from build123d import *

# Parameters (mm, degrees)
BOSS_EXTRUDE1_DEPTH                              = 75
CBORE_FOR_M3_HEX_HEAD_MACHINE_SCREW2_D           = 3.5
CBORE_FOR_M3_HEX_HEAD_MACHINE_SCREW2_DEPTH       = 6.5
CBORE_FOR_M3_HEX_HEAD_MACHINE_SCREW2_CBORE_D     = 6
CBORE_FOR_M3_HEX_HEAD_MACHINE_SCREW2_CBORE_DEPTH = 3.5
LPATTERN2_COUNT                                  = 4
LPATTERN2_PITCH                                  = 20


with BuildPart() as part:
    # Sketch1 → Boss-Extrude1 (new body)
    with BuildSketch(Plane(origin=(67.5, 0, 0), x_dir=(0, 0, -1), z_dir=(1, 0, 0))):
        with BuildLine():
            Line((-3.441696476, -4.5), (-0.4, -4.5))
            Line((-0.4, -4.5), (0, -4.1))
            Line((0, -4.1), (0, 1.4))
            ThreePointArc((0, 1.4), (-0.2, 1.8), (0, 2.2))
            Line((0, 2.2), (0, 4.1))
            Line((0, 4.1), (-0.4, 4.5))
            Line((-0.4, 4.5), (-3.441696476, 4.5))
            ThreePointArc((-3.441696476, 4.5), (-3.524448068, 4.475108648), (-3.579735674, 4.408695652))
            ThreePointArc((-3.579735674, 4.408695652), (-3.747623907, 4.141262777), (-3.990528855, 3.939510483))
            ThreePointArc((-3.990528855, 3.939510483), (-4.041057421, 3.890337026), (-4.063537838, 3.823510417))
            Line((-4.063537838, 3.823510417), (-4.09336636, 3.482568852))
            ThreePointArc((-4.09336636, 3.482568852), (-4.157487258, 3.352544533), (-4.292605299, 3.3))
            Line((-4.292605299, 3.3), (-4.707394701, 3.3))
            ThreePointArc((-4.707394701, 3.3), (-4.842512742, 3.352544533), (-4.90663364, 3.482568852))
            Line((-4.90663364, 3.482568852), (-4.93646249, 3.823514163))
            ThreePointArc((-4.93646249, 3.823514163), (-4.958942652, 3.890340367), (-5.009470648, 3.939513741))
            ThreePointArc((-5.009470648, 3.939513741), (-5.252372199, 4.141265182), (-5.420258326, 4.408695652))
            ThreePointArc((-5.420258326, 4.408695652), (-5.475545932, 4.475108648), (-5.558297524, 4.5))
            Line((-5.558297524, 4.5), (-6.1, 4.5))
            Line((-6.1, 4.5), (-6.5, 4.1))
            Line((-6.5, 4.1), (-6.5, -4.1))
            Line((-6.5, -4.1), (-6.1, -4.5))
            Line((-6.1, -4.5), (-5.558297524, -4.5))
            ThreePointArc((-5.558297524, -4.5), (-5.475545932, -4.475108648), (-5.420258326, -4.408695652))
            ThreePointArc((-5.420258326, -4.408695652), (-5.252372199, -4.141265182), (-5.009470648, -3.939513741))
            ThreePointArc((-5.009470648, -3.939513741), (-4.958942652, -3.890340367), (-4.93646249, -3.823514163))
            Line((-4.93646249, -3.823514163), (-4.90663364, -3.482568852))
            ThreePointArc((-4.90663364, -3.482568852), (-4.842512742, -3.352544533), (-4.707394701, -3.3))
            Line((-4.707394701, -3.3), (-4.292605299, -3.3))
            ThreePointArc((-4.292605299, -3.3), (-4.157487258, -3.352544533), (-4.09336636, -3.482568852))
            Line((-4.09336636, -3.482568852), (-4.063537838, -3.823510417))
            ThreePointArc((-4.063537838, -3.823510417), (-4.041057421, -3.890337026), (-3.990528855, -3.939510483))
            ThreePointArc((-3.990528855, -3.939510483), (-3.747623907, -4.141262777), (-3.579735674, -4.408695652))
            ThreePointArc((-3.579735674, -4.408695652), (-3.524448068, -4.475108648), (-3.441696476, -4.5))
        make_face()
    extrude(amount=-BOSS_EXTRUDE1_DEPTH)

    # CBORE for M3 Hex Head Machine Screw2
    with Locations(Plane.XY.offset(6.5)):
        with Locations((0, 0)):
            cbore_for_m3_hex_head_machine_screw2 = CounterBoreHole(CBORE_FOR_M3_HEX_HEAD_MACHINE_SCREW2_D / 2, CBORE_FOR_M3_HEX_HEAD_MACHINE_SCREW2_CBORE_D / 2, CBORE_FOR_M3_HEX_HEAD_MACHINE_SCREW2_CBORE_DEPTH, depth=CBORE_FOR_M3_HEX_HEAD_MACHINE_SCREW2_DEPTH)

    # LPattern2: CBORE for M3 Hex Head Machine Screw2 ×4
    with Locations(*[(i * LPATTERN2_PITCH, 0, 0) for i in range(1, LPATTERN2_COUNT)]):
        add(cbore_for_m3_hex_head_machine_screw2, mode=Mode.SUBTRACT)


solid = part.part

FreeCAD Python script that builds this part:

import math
import FreeCAD as App
import Part
import Sketcher
from FreeCAD import Vector
Q = App.Units.Quantity

doc = App.newDocument("Part")
params = doc.addObject("Spreadsheet::Sheet", "Params")
for row, (alias, value) in enumerate([
    ("sketch1_radius", "1 mm"),
    ("sketch1_radius2", "0.5 mm"),
    ("sketch1_radius3", "0.2 mm"),
    ("sketch1_radius4", "0.15 mm"),
    ("sketch1_width", "5.5 mm"),
    ("pad1_length", "75 mm"),
    ("sketch2_diameter", "3.5 mm"),
    ("hole_diameter", "3.5 mm"),
    ("hole_depth", "6.5 mm"),
    ("hole_cbore_diameter", "6 mm"),
    ("hole_cbore_depth", "3.5 mm"),
    ("linearpattern_pitch", "20 mm"),
], start=1):
    params.set(f"A{row}", alias)
    params.set(f"B{row}", "=" + value)
    params.setAlias(f"B{row}", alias)

body = doc.addObject("PartDesign::Body", "Body")

# Sketch on YZ plane
sketch1 = body.newObject("Sketcher::SketchObject", "Sketch")
sketch1.AttachmentSupport = (doc.getObject("YZ_Plane"), [""])
sketch1.MapMode = "FlatFace"
sketch1.AttachmentOffset = App.Placement(Vector(0, 0, 67.5), App.Rotation())
sketch1.addGeometry([
    Part.LineSegment(Vector(-4.5, 3.44, 0), Vector(-4.5, 0.4, 0)),  # 0
    Part.LineSegment(Vector(-4.5, 0.4, 0), Vector(-4.1, 0, 0)),  # 1
    Part.LineSegment(Vector(-4.1, 0, 0), Vector(1.4, 0, 0)),  # 2
    Part.ArcOfCircle(Part.Circle(Vector(1.8, -0.3, 0), Vector(0, 0, 1), 0.5), math.radians(37), math.radians(143)),  # 3
    Part.LineSegment(Vector(2.2, 0, 0), Vector(4.1, 0, 0)),  # 4
    Part.LineSegment(Vector(4.1, 0, 0), Vector(4.5, 0.4, 0)),  # 5
    Part.LineSegment(Vector(4.5, 0.4, 0), Vector(4.5, 3.44, 0)),  # 6
    Part.ArcOfCircle(Part.Circle(Vector(4.35, 3.44, 0), Vector(0, 0, 1), 0.15), math.radians(0), math.radians(67)),  # 7
    Part.ArcOfCircle(Part.Circle(Vector(4.8, 4.5, 0), Vector(0, 0, 1), 1), math.radians(-149), math.radians(-113)),  # 8
    Part.ArcOfCircle(Part.Circle(Vector(3.81, 3.91, 0), Vector(0, 0, 1), 0.15), math.radians(31), math.radians(85)),  # 9
    Part.LineSegment(Vector(3.82, 4.06, 0), Vector(3.48, 4.09, 0)),  # 10
    Part.ArcOfCircle(Part.Circle(Vector(3.5, 4.29, 0), Vector(0, 0, 1), 0.2), math.radians(-180), math.radians(-95)),  # 11
    Part.LineSegment(Vector(3.3, 4.29, 0), Vector(3.3, 4.71, 0)),  # 12
    Part.ArcOfCircle(Part.Circle(Vector(3.5, 4.71, 0), Vector(0, 0, 1), 0.2), math.radians(95), math.radians(180)),  # 13
    Part.LineSegment(Vector(3.48, 4.91, 0), Vector(3.82, 4.94, 0)),  # 14
    Part.ArcOfCircle(Part.Circle(Vector(3.81, 5.09, 0), Vector(0, 0, 1), 0.15), math.radians(-85), math.radians(-31)),  # 15
    Part.ArcOfCircle(Part.Circle(Vector(4.8, 4.5, 0), Vector(0, 0, 1), 1), math.radians(113), math.radians(149)),  # 16
    Part.ArcOfCircle(Part.Circle(Vector(4.35, 5.56, 0), Vector(0, 0, 1), 0.15), math.radians(-67), math.radians(0)),  # 17
    Part.LineSegment(Vector(4.5, 5.56, 0), Vector(4.5, 6.1, 0)),  # 18
    Part.LineSegment(Vector(4.5, 6.1, 0), Vector(4.1, 6.5, 0)),  # 19
    Part.LineSegment(Vector(4.1, 6.5, 0), Vector(-4.1, 6.5, 0)),  # 20
    Part.LineSegment(Vector(-4.1, 6.5, 0), Vector(-4.5, 6.1, 0)),  # 21
    Part.LineSegment(Vector(-4.5, 6.1, 0), Vector(-4.5, 5.56, 0)),  # 22
    Part.ArcOfCircle(Part.Circle(Vector(-4.35, 5.56, 0), Vector(0, 0, 1), 0.15), math.radians(-180), math.radians(-113)),  # 23
    Part.ArcOfCircle(Part.Circle(Vector(-4.8, 4.5, 0), Vector(0, 0, 1), 1), math.radians(31), math.radians(67)),  # 24
    Part.ArcOfCircle(Part.Circle(Vector(-3.81, 5.09, 0), Vector(0, 0, 1), 0.15), math.radians(-149), math.radians(-95)),  # 25
    Part.LineSegment(Vector(-3.82, 4.94, 0), Vector(-3.48, 4.91, 0)),  # 26
    Part.ArcOfCircle(Part.Circle(Vector(-3.5, 4.71, 0), Vector(0, 0, 1), 0.2), math.radians(0), math.radians(85)),  # 27
    Part.LineSegment(Vector(-3.3, 4.71, 0), Vector(-3.3, 4.29, 0)),  # 28
    Part.ArcOfCircle(Part.Circle(Vector(-3.5, 4.29, 0), Vector(0, 0, 1), 0.2), math.radians(-85), math.radians(0)),  # 29
    Part.LineSegment(Vector(-3.48, 4.09, 0), Vector(-3.82, 4.06, 0)),  # 30
    Part.ArcOfCircle(Part.Circle(Vector(-3.81, 3.91, 0), Vector(0, 0, 1), 0.15), math.radians(95), math.radians(149)),  # 31
    Part.ArcOfCircle(Part.Circle(Vector(-4.8, 4.5, 0), Vector(0, 0, 1), 1), math.radians(-67), math.radians(-31)),  # 32
    Part.ArcOfCircle(Part.Circle(Vector(-4.35, 3.44, 0), Vector(0, 0, 1), 0.15), math.radians(113), math.radians(180)),  # 33
], False)
sketch1.addConstraint([
    Sketcher.Constraint("Coincident", 0, 2, 1, 1),
    Sketcher.Constraint("Coincident", 1, 2, 2, 1),
    Sketcher.Constraint("Coincident", 2, 2, 3, 2),
    Sketcher.Constraint("Coincident", 3, 1, 4, 1),
    Sketcher.Constraint("Coincident", 4, 2, 5, 1),
    Sketcher.Constraint("Coincident", 5, 2, 6, 1),
    Sketcher.Constraint("Tangent", 6, 2, 7, 1),
    Sketcher.Constraint("Tangent", 7, 2, 8, 2),
    Sketcher.Constraint("Tangent", 8, 1, 9, 1),
    Sketcher.Constraint("Tangent", 9, 2, 10, 1),
    Sketcher.Constraint("Tangent", 10, 2, 11, 2),
    Sketcher.Constraint("Tangent", 11, 1, 12, 1),
    Sketcher.Constraint("Tangent", 12, 2, 13, 2),
    Sketcher.Constraint("Tangent", 13, 1, 14, 1),
    Sketcher.Constraint("Tangent", 14, 2, 15, 1),
    Sketcher.Constraint("Tangent", 15, 2, 16, 2),
    Sketcher.Constraint("Tangent", 16, 1, 17, 1),
    Sketcher.Constraint("Tangent", 17, 2, 18, 1),
    Sketcher.Constraint("Coincident", 18, 2, 19, 1),
    Sketcher.Constraint("Coincident", 19, 2, 20, 1),
    Sketcher.Constraint("Coincident", 20, 2, 21, 1),
    Sketcher.Constraint("Coincident", 21, 2, 22, 1),
    Sketcher.Constraint("Tangent", 22, 2, 23, 1),
    Sketcher.Constraint("Tangent", 23, 2, 24, 2),
    Sketcher.Constraint("Tangent", 24, 1, 25, 1),
    Sketcher.Constraint("Tangent", 25, 2, 26, 1),
    Sketcher.Constraint("Tangent", 26, 2, 27, 2),
    Sketcher.Constraint("Tangent", 27, 1, 28, 1),
    Sketcher.Constraint("Tangent", 28, 2, 29, 2),
    Sketcher.Constraint("Tangent", 29, 1, 30, 1),
    Sketcher.Constraint("Tangent", 30, 2, 31, 1),
    Sketcher.Constraint("Tangent", 31, 2, 32, 2),
    Sketcher.Constraint("Tangent", 32, 1, 33, 1),
    Sketcher.Constraint("Tangent", 33, 2, 0, 1),
    Sketcher.Constraint("Vertical", 0),
    Sketcher.Constraint("Horizontal", 2),
    Sketcher.Constraint("Horizontal", 4),
    Sketcher.Constraint("Vertical", 6),
    Sketcher.Constraint("Vertical", 12),
    Sketcher.Constraint("Vertical", 18),
    Sketcher.Constraint("Horizontal", 20),
    Sketcher.Constraint("Vertical", 22),
    Sketcher.Constraint("Vertical", 28),
    Sketcher.Constraint("Coincident", 16, 3, 8, 3),
    Sketcher.Constraint("Coincident", 32, 3, 24, 3),
    Sketcher.Constraint("Equal", 7, 9),
    Sketcher.Constraint("Equal", 11, 13),
    Sketcher.Constraint("Equal", 9, 15),
    Sketcher.Constraint("Equal", 8, 16),
    Sketcher.Constraint("Equal", 15, 17),
    Sketcher.Constraint("Equal", 17, 23),
    Sketcher.Constraint("Equal", 16, 24),
    Sketcher.Constraint("Equal", 23, 25),
    Sketcher.Constraint("Equal", 13, 27),
    Sketcher.Constraint("Equal", 27, 29),
    Sketcher.Constraint("Equal", 25, 31),
    Sketcher.Constraint("Equal", 24, 32),
    Sketcher.Constraint("Equal", 31, 33),
    Sketcher.Constraint("Symmetric", 1, 2, 4, 2, -1, 1),
    Sketcher.Constraint("Symmetric", 17, 3, 23, 3, -2),
    Sketcher.Constraint("Symmetric", 15, 3, 25, 3, -2),
    Sketcher.Constraint("Symmetric", 13, 3, 27, 3, -2),
    Sketcher.Constraint("Symmetric", 0, 2, 5, 2, -2),
    Sketcher.Constraint("Symmetric", 10, 2, 29, 1, -2),
    Sketcher.Constraint("PointOnObject", 1, 2, -1),
    Sketcher.Constraint("Perpendicular", 1, 5),
    Sketcher.Constraint("Perpendicular", 5, 19),
    Sketcher.Constraint("Perpendicular", 19, 21),
    Sketcher.Constraint("Parallel", 10, 26),
    Sketcher.Constraint("Horizontal", 18, 2, 21, 2),
    Sketcher.Constraint("Vertical", 7, 3, 17, 3),
    Sketcher.Constraint("Vertical", 4, 2, 19, 2),
    Sketcher.Constraint("Radius", 8, Q("1 mm")),
    Sketcher.Constraint("Radius", 3, Q("0.5 mm")),
    Sketcher.Constraint("Radius", 11, Q("0.2 mm")),
    Sketcher.Constraint("Angle", 10, Q("175 deg")),
    Sketcher.Constraint("Radius", 7, Q("0.15 mm")),
    Sketcher.Constraint("DistanceX", 2, 1, 2, 2, Q("5.5 mm")),
    Sketcher.Constraint("DistanceX", 4, 1, 4, 2, Q("1.9 mm")),
    Sketcher.Constraint("DistanceX", 20, 2, 20, 1, Q("8.2 mm")),
    Sketcher.Constraint("DistanceX", 3, 3, 8, 3, Q("3 mm")),
    Sketcher.Constraint("DistanceX", 27, 3, 13, 3, Q("7 mm")),
    Sketcher.Constraint("DistanceX", 0, 2, 29, 3, Q("1 mm")),
    Sketcher.Constraint("DistanceY", -1, 1, 18, 2, Q("6.1 mm")),
    Sketcher.Constraint("DistanceX", 9, 2, 8, 1, Q("0.116 mm")),
    Sketcher.Constraint("DistanceX", 14, 2, 15, 2, Q("0.116 mm")),
    Sketcher.Constraint("DistanceY", 0, 2, 0, 1, Q("3.041696 mm")),
])
sketch1.setExpression("Constraints[72]", "Params.sketch1_radius")
sketch1.setExpression("Constraints[73]", "Params.sketch1_radius2")
sketch1.setExpression("Constraints[74]", "Params.sketch1_radius3")
sketch1.setExpression("Constraints[76]", "Params.sketch1_radius4")
sketch1.setExpression("Constraints[77]", "Params.sketch1_width")
pad1 = body.newObject("PartDesign::Pad", "Pad")
pad1.Profile = sketch1
pad1.setExpression("Length", "Params.pad1_length")
pad1.Reversed = True

# Sketch on XY plane
sketch2 = body.newObject("Sketcher::SketchObject", "Sketch001")
sketch2.AttachmentSupport = (doc.getObject("XY_Plane"), [""])
sketch2.MapMode = "FlatFace"
sketch2.AttachmentOffset = App.Placement(Vector(0, 0, 6.5), App.Rotation())
sketch2.addGeometry(Part.Circle(Vector(0, 0, 0), Vector(0, 0, 1), 1.8), False)
sketch2.addConstraint([
    Sketcher.Constraint("Coincident", 0, 3, -1, 1),
    Sketcher.Constraint("Diameter", 0, Q("3.5 mm")),
])
sketch2.setExpression("Constraints[1]", "Params.sketch2_diameter")
doc.recompute()
hole = body.newObject("PartDesign::Hole", "Hole")
hole.Profile = sketch2
hole.ThreadType = "None"
hole.setExpression("Diameter", "Params.hole_diameter")
hole.DepthType = "Dimension"
hole.setExpression("Depth", "Params.hole_depth")
hole.DrillPoint = "Flat"
hole.HoleCutType = "Counterbore"
hole.setExpression("HoleCutDiameter", "Params.hole_cbore_diameter")
hole.setExpression("HoleCutDepth", "Params.hole_cbore_depth")
doc.recompute()

linearpattern = body.newObject("PartDesign::LinearPattern", "LinearPattern")
linearpattern.Originals = [hole]
linearpattern.Direction = (doc.getObject("X_Axis"), [""])
linearpattern.Mode = "offset"
linearpattern.setExpression("Offset", "Params.linearpattern_pitch")
linearpattern.Occurrences = 4
body.Tip = linearpattern

doc.recompute()
